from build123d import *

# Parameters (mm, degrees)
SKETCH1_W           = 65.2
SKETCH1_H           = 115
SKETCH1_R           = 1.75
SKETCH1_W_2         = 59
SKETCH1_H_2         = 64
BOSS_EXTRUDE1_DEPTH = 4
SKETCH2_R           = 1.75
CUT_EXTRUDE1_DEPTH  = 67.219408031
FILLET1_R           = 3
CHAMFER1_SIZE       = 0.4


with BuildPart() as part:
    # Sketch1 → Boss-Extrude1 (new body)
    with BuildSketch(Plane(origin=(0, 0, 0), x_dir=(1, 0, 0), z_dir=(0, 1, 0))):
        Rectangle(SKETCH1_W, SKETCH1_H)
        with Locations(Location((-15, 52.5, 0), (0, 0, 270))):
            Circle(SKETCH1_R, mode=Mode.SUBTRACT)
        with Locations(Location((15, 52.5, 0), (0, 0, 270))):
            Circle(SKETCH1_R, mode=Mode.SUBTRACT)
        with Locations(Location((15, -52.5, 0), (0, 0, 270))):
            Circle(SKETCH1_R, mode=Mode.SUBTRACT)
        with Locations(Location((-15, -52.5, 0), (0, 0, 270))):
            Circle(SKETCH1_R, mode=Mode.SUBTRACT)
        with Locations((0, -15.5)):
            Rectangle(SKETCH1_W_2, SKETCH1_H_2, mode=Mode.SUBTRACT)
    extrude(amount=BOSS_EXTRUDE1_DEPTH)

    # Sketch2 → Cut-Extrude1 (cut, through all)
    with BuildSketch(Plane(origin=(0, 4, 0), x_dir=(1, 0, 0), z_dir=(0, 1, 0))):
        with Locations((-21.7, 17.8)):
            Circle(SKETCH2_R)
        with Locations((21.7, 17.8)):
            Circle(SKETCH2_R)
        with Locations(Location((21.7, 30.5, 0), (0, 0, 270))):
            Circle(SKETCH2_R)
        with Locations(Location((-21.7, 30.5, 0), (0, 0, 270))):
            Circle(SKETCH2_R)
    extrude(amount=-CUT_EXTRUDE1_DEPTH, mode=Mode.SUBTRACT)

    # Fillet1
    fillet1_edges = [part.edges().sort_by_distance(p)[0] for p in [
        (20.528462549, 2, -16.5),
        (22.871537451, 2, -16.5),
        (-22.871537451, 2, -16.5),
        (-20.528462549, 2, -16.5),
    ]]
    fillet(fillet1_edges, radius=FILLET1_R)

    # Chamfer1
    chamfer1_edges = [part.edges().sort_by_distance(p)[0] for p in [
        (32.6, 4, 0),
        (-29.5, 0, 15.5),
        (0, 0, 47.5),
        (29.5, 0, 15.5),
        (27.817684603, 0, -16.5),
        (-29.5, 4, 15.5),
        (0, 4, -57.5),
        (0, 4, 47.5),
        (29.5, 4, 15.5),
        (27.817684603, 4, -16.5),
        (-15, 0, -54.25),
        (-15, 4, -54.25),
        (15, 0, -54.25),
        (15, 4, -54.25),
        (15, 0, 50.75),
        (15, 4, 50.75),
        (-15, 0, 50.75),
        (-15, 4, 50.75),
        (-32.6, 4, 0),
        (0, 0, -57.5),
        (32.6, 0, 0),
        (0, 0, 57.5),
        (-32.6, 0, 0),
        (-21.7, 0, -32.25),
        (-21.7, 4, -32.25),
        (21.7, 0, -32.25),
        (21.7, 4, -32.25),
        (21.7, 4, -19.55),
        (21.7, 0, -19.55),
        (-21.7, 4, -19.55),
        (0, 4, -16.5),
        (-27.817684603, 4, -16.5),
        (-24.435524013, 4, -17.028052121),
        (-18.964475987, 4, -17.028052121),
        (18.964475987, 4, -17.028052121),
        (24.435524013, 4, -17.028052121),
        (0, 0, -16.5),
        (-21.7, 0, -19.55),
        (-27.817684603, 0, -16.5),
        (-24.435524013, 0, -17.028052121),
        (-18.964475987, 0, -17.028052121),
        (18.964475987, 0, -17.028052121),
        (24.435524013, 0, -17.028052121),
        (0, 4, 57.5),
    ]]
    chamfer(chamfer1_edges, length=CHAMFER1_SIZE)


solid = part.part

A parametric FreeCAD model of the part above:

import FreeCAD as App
import Part
import Sketcher


def edges_at(feature, points):
    """Names of the edges that pass closest to the given points."""
    edges = feature.Shape.Edges
    near = lambda p: min(range(len(edges)), key=lambda i: edges[i].distToShape(Part.Vertex(*p))[0])
    return sorted({f"Edge{near(p) + 1}" for p in points})

doc = App.newDocument("Part")
body = doc.addObject("PartDesign::Body", "Body")

# Sketch on XZ plane
sketch1 = body.newObject("Sketcher::SketchObject", "Sketch")
sketch1.AttachmentSupport = (doc.getObject("XZ_Plane"), [""])
sketch1.MapMode = "FlatFace"
sketch1.addGeometry([
    Part.LineSegment(App.Vector(-32.6, -57.5, 0), App.Vector(-32.6, 57.5, 0)),  # 0
    Part.LineSegment(App.Vector(-32.6, 57.5, 0), App.Vector(32.6, 57.5, 0)),  # 1
    Part.LineSegment(App.Vector(32.6, 57.5, 0), App.Vector(32.6, -57.5, 0)),  # 2
    Part.LineSegment(App.Vector(32.6, -57.5, 0), App.Vector(-32.6, -57.5, 0)),  # 3
    Part.Circle(App.Vector(-15, 52.5, 0), App.Vector(0, 0, 1), 1.75),  # 4
    Part.Circle(App.Vector(15, 52.5, 0), App.Vector(0, 0, 1), 1.75),  # 5
    Part.LineSegment(App.Vector(29.5, 47.5, 0), App.Vector(-29.5, 47.5, 0)),  # 6
    Part.LineSegment(App.Vector(-29.5, 47.5, 0), App.Vector(-29.5, -16.5, 0)),  # 7
    Part.LineSegment(App.Vector(-29.5, -16.5, 0), App.Vector(29.5, -16.5, 0)),  # 8
    Part.LineSegment(App.Vector(29.5, -16.5, 0), App.Vector(29.5, 47.5, 0)),  # 9
    Part.Circle(App.Vector(-15, -52.5, 0), App.Vector(0, 0, 1), 1.75),  # 10
    Part.Circle(App.Vector(15, -52.5, 0), App.Vector(0, 0, 1), 1.75),  # 11
], False)
sketch1.addConstraint([
    Sketcher.Constraint("Coincident", 0, 2, 1, 1),
    Sketcher.Constraint("Coincident", 1, 2, 2, 1),
    Sketcher.Constraint("Coincident", 2, 2, 3, 1),
    Sketcher.Constraint("Coincident", 3, 2, 0, 1),
    Sketcher.Constraint("Coincident", 6, 2, 7, 1),
    Sketcher.Constraint("Coincident", 7, 2, 8, 1),
    Sketcher.Constraint("Coincident", 8, 2, 9, 1),
    Sketcher.Constraint("Coincident", 9, 2, 6, 1),
    Sketcher.Constraint("Vertical", 0),
    Sketcher.Constraint("Horizontal", 1),
    Sketcher.Constraint("Vertical", 2),
    Sketcher.Constraint("Horizontal", 3),
    Sketcher.Constraint("Horizontal", 6),
    Sketcher.Constraint("Vertical", 7),
    Sketcher.Constraint("Horizontal", 8),
    Sketcher.Constraint("Vertical", 9),
    Sketcher.Constraint("Equal", 4, 5),
    Sketcher.Constraint("Equal", 5, 10),
    Sketcher.Constraint("Equal", 10, 11),
    Sketcher.Constraint("Symmetric", 5, 3, 10, 3, -1, 1),
    Sketcher.Constraint("Symmetric", 4, 3, 11, 3, -1, 1),
    Sketcher.Constraint("Symmetric", 0, 2, 2, 2, -1, 1),
    Sketcher.Constraint("Symmetric", 4, 3, 5, 3, -2),
    Sketcher.Constraint("Diameter", 4, 3.5),
    Sketcher.Constraint("DistanceX", 6, 2, 6, 1, 59.0),
    Sketcher.Constraint("DistanceY", 0, 1, 0, 2, 115.0),
    Sketcher.Constraint("DistanceY", 7, 2, 7, 1, 64.0),
    Sketcher.Constraint("DistanceX", 1, 1, 1, 2, 65.2),
    Sketcher.Constraint("DistanceX", 4, 3, -1, 1, 15.0),
    Sketcher.Constraint("DistanceY", 10, 3, 4, 3, 105.0),
    Sketcher.Constraint("DistanceY", 6, 2, 0, 2, 10.0),
    Sketcher.Constraint("DistanceX", 6, 2, -1, 1, 29.5),
])
pad1 = body.newObject("PartDesign::Pad", "Pad")
pad1.Profile = sketch1
pad1.Length = 4
pad1.Reversed = True

# Sketch on XZ plane
sketch2 = body.newObject("Sketcher::SketchObject", "Sketch001")
sketch2.AttachmentSupport = (doc.getObject("XZ_Plane"), [""])
sketch2.MapMode = "FlatFace"
sketch2.AttachmentOffset = App.Placement(App.Vector(0, 0, -4), App.Rotation())
sketch2.addGeometry([
    Part.Circle(App.Vector(-21.7, -17.8, 0), App.Vector(0, 0, 1), 1.75),
    Part.Circle(App.Vector(21.7, -17.8, 0), App.Vector(0, 0, 1), 1.75),
    Part.Circle(App.Vector(21.7, -30.5, 0), App.Vector(0, 0, 1), 1.75),
    Part.Circle(App.Vector(-21.7, -30.5, 0), App.Vector(0, 0, 1), 1.75),
], False)
sketch2.addConstraint([
    Sketcher.Constraint("Equal", 0, 1),
    Sketcher.Constraint("Equal", 1, 2),
    Sketcher.Constraint("Equal", 2, 3),
    Sketcher.Constraint("Symmetric", 0, 3, 1, 3, -2),
    Sketcher.Constraint("Symmetric", 2, 3, 3, 3, -2),
    Sketcher.Constraint("Vertical", 1, 3, 2, 3),
    Sketcher.Constraint("Diameter", 0, 3.5),
    Sketcher.Constraint("DistanceX", 0, 3, -1, 1, 21.7),
    Sketcher.Constraint("DistanceY", 0, 3, -1, 1, 17.8),
    Sketcher.Constraint("DistanceY", 2, 3, -1, 1, 30.5),
])
pocket1 = body.newObject("PartDesign::Pocket", "Pocket")
pocket1.Profile = sketch2
pocket1.Type = "ThroughAll"
pocket1.Reversed = True
doc.recompute()

fillet = body.newObject("PartDesign::Fillet", "Fillet")
fillet.Base = (pocket1, edges_at(pocket1, [
    (20.528, 2, -16.5),
    (22.872, 2, -16.5),
    (-22.872, 2, -16.5),
    (-20.528, 2, -16.5),
]))
fillet.Radius = 3
doc.recompute()

chamfer = body.newObject("PartDesign::Chamfer", "Chamfer")
chamfer.Base = (fillet, edges_at(fillet, [
    (32.6, 4, 0),
    (-29.5, 0, 15.5),
    (0, 0, 47.5),
    (29.5, 0, 15.5),
    (27.818, 0, -16.5),
    (-29.5, 4, 15.5),
    (0, 4, -57.5),
    (0, 4, 47.5),
    (29.5, 4, 15.5),
    (27.818, 4, -16.5),
    (-15, 0, -54.25),
    (-15, 4, -54.25),
    (15, 0, -54.25),
    (15, 4, -54.25),
    (15, 0, 50.75),
    (15, 4, 50.75),
    (-15, 0, 50.75),
    (-15, 4, 50.75),
    (-32.6, 4, 0),
    (0, 0, -57.5),
    (32.6, 0, 0),
    (0, 0, 57.5),
    (-32.6, 0, 0),
    (-21.7, 0, -32.25),
    (-21.7, 4, -32.25),
    (21.7, 0, -32.25),
    (21.7, 4, -32.25),
    (21.7, 4, -19.55),
    (21.7, 0, -19.55),
    (-21.7, 4, -19.55),
    (0, 4, -16.5),
    (-27.818, 4, -16.5),
    (-24.436, 4, -17.028),
    (-18.964, 4, -17.028),
    (18.964, 4, -17.028),
    (24.436, 4, -17.028),
    (0, 0, -16.5),
    (-21.7, 0, -19.55),
    (-27.818, 0, -16.5),
    (-24.436, 0, -17.028),
    (-18.964, 0, -17.028),
    (18.964, 0, -17.028),
    (24.436, 0, -17.028),
    (0, 4, 57.5),
]))
chamfer.Size = 0.4

doc.recompute()
